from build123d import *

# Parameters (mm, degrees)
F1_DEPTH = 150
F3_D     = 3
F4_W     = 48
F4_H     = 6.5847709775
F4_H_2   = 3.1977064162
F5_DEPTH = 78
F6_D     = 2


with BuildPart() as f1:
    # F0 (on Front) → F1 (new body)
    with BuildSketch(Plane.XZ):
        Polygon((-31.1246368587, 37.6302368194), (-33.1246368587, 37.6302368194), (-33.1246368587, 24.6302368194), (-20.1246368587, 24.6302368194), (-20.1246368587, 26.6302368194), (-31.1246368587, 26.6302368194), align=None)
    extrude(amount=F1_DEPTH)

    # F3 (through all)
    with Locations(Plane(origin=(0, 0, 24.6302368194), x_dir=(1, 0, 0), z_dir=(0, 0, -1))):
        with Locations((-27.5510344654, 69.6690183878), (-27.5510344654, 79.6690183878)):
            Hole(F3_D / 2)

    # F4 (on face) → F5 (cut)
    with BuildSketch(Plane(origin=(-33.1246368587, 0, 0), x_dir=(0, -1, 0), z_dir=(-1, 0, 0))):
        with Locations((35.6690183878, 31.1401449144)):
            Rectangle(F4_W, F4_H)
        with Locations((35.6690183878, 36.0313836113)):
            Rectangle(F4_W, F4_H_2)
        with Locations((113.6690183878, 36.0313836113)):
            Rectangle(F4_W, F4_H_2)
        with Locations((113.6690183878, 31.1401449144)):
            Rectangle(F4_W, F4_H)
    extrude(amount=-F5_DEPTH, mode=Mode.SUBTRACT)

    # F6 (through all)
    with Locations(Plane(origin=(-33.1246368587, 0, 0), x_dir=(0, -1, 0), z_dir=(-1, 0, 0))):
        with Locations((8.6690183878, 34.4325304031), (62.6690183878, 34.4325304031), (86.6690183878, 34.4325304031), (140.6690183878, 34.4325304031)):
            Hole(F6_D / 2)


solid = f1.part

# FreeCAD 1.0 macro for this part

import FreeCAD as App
import Part
import Sketcher
from FreeCAD import Vector


def add_polygon(sketch, points):
    """Adds a closed chain of lines whose ends are joined by coincident constraints."""
    first, n = sketch.GeometryCount, len(points)
    for a, b in zip(points, points[1:] + points[:1]):
        sketch.addGeometry(Part.LineSegment(App.Vector(*a, 0), App.Vector(*b, 0)), False)
    for i in range(n):
        sketch.addConstraint(Sketcher.Constraint("Coincident", first + i, 2, first + (i + 1) % n, 1))

doc = App.newDocument("Part")
params = doc.addObject("Spreadsheet::Sheet", "Params")
for row, (alias, value) in enumerate([
    ("sketch1_width", "2 mm"),
    ("sketch1_width2", "13 mm"),
    ("pad1_length", "150 mm"),
    ("sketch2_diameter", "3 mm"),
    ("hole_diameter", "3 mm"),
    ("sketch3_width", "48 mm"),
    ("pocket1_length", "78 mm"),
    ("sketch4_diameter", "2 mm"),
    ("hole2_diameter", "2 mm"),
], start=1):
    params.set(f"A{row}", alias)
    params.set(f"B{row}", "=" + value)
    params.setAlias(f"B{row}", alias)

body = doc.addObject("PartDesign::Body", "Body")

# Sketch on XZ plane
sketch1 = body.newObject("Sketcher::SketchObject", "Sketch")
sketch1.AttachmentSupport = (doc.getObject("XZ_Plane"), [""])
sketch1.MapMode = "FlatFace"
add_polygon(sketch1, [(-31.1, 37.6), (-33.1, 37.6), (-33.1, 24.6), (-20.1, 24.6), (-20.1, 26.6), (-31.1, 26.6)])  # lines 0-5
sketch1.addConstraint([
    Sketcher.Constraint("Horizontal", 0),
    Sketcher.Constraint("Vertical", 1),
    Sketcher.Constraint("Horizontal", 2),
    Sketcher.Constraint("Vertical", 3),
    Sketcher.Constraint("Horizontal", 4),
    Sketcher.Constraint("Vertical", 5),
    Sketcher.Constraint("Equal", 2, 1),
    Sketcher.Constraint("Equal", 0, 3),
    Sketcher.Constraint("DistanceX", 0, 2, 0, 1, 2.0),
    Sketcher.Constraint("DistanceX", 2, 1, 2, 2, 13.0),
    Sketcher.Constraint("DistanceX", 0, 2, -1, 1, 33.124637),
    Sketcher.Constraint("DistanceY", -1, 1, 0, 2, 37.630237),
])
sketch1.setExpression("Constraints[14]", "Params.sketch1_width")
sketch1.setExpression("Constraints[15]", "Params.sketch1_width2")
pad1 = body.newObject("PartDesign::Pad", "Pad")
pad1.Profile = sketch1
pad1.setExpression("Length", "Params.pad1_length")

# Sketch on XY plane
sketch2 = body.newObject("Sketcher::SketchObject", "Sketch001")
sketch2.AttachmentSupport = (doc.getObject("XY_Plane"), [""])
sketch2.MapMode = "FlatFace"
sketch2.AttachmentOffset = App.Placement(Vector(0, 0, 24.630237), App.Rotation())
sketch2.addGeometry([
    Part.Circle(Vector(-27.6, -69.7, 0), Vector(0, 0, 1), 1.5),
    Part.Circle(Vector(-27.6, -79.7, 0), Vector(0, 0, 1), 1.5),
], False)
sketch2.addConstraint([
    Sketcher.Constraint("Equal", 0, 1),
    Sketcher.Constraint("Vertical", 0, 3, 1, 3),
    Sketcher.Constraint("Diameter", 0, 3.0),
    Sketcher.Constraint("DistanceY", 1, 3, 0, 3, 10.0),
    Sketcher.Constraint("DistanceY", 0, 3, -1, 1, 69.669018),
    Sketcher.Constraint("DistanceX", 0, 3, -1, 1, 27.551034),
])
sketch2.setExpression("Constraints[2]", "Params.sketch2_diameter")
doc.recompute()
hole = body.newObject("PartDesign::Hole", "Hole")
hole.Profile = sketch2
hole.ThreadType = "None"
hole.setExpression("Diameter", "Params.hole_diameter")
hole.DepthType = "ThroughAll"
hole.Reversed = True

# Sketch on YZ plane
sketch3 = body.newObject("Sketcher::SketchObject", "Sketch002")
sketch3.AttachmentSupport = (doc.getObject("YZ_Plane"), [""])
sketch3.MapMode = "FlatFace"
sketch3.AttachmentOffset = App.Placement(Vector(0, 0, -33.124637), App.Rotation())
add_polygon(sketch3, [(-12, 28), (-60, 28), (-60, 38), (-12, 38)])  # lines 0-3
add_polygon(sketch3, [(-90, 38), (-90, 28), (-138, 28), (-138, 38)])  # lines 4-7
sketch3.addConstraint([
    Sketcher.Constraint("Horizontal", 0),
    Sketcher.Constraint("Vertical", 1),
    Sketcher.Constraint("Horizontal", 2),
    Sketcher.Constraint("Vertical", 3),
    Sketcher.Constraint("Vertical", 4),
    Sketcher.Constraint("Horizontal", 5),
    Sketcher.Constraint("Vertical", 6),
    Sketcher.Constraint("Horizontal", 7),
    Sketcher.Constraint("Horizontal", 3, 2, 4, 2),
    Sketcher.Constraint("Horizontal", 2, 2, 6, 2),
    Sketcher.Constraint("Equal", 2, 5),
    Sketcher.Constraint("DistanceX", 0, 2, 0, 1, 48.0),
    Sketcher.Constraint("DistanceX", 4, 2, 0, 2, 30.0),
    Sketcher.Constraint("DistanceY", 1, 1, 1, 2, 9.782477),
    Sketcher.Constraint("DistanceX", 0, 2, -1, 1, 59.669018),
    Sketcher.Constraint("DistanceY", -1, 1, 0, 2, 27.847759),
])
sketch3.setExpression("Constraints[19]", "Params.sketch3_width")
pocket1 = body.newObject("PartDesign::Pocket", "Pocket")
pocket1.Profile = sketch3
pocket1.setExpression("Length", "Params.pocket1_length")
pocket1.Reversed = True

# Sketch on YZ plane
sketch4 = body.newObject("Sketcher::SketchObject", "Sketch003")
sketch4.AttachmentSupport = (doc.getObject("YZ_Plane"), [""])
sketch4.MapMode = "FlatFace"
sketch4.AttachmentOffset = App.Placement(Vector(0, 0, -33.124637), App.Rotation())
sketch4.addGeometry([
    Part.Circle(Vector(-8.7, 34.4, 0), Vector(0, 0, 1), 1),
    Part.Circle(Vector(-62.7, 34.4, 0), Vector(0, 0, 1), 1),
    Part.Circle(Vector(-86.7, 34.4, 0), Vector(0, 0, 1), 1),
    Part.Circle(Vector(-140.7, 34.4, 0), Vector(0, 0, 1), 1),
], False)
sketch4.addConstraint([
    Sketcher.Constraint("Equal", 0, 1),
    Sketcher.Constraint("Equal", 1, 2),
    Sketcher.Constraint("Equal", 2, 3),
    Sketcher.Constraint("Horizontal", 0, 3, 1, 3),
    Sketcher.Constraint("Horizontal", 1, 3, 2, 3),
    Sketcher.Constraint("Horizontal", 2, 3, 3, 3),
    Sketcher.Constraint("Diameter", 0, 2.0),
    Sketcher.Constraint("DistanceX", 1, 3, 0, 3, 54.0),
    Sketcher.Constraint("DistanceX", 2, 3, 1, 3, 24.0),
    Sketcher.Constraint("DistanceX", 3, 3, 2, 3, 54.0),
    Sketcher.Constraint("DistanceX", 0, 3, -1, 1, 8.669018),
    Sketcher.Constraint("DistanceY", -1, 1, 0, 3, 34.43253),
])
sketch4.setExpression("Constraints[6]", "Params.sketch4_diameter")
doc.recompute()
hole2 = body.newObject("PartDesign::Hole", "Hole001")
hole2.Profile = sketch4
hole2.ThreadType = "None"
hole2.setExpression("Diameter", "Params.hole2_diameter")
hole2.DepthType = "ThroughAll"
hole2.Reversed = True

doc.recompute()
